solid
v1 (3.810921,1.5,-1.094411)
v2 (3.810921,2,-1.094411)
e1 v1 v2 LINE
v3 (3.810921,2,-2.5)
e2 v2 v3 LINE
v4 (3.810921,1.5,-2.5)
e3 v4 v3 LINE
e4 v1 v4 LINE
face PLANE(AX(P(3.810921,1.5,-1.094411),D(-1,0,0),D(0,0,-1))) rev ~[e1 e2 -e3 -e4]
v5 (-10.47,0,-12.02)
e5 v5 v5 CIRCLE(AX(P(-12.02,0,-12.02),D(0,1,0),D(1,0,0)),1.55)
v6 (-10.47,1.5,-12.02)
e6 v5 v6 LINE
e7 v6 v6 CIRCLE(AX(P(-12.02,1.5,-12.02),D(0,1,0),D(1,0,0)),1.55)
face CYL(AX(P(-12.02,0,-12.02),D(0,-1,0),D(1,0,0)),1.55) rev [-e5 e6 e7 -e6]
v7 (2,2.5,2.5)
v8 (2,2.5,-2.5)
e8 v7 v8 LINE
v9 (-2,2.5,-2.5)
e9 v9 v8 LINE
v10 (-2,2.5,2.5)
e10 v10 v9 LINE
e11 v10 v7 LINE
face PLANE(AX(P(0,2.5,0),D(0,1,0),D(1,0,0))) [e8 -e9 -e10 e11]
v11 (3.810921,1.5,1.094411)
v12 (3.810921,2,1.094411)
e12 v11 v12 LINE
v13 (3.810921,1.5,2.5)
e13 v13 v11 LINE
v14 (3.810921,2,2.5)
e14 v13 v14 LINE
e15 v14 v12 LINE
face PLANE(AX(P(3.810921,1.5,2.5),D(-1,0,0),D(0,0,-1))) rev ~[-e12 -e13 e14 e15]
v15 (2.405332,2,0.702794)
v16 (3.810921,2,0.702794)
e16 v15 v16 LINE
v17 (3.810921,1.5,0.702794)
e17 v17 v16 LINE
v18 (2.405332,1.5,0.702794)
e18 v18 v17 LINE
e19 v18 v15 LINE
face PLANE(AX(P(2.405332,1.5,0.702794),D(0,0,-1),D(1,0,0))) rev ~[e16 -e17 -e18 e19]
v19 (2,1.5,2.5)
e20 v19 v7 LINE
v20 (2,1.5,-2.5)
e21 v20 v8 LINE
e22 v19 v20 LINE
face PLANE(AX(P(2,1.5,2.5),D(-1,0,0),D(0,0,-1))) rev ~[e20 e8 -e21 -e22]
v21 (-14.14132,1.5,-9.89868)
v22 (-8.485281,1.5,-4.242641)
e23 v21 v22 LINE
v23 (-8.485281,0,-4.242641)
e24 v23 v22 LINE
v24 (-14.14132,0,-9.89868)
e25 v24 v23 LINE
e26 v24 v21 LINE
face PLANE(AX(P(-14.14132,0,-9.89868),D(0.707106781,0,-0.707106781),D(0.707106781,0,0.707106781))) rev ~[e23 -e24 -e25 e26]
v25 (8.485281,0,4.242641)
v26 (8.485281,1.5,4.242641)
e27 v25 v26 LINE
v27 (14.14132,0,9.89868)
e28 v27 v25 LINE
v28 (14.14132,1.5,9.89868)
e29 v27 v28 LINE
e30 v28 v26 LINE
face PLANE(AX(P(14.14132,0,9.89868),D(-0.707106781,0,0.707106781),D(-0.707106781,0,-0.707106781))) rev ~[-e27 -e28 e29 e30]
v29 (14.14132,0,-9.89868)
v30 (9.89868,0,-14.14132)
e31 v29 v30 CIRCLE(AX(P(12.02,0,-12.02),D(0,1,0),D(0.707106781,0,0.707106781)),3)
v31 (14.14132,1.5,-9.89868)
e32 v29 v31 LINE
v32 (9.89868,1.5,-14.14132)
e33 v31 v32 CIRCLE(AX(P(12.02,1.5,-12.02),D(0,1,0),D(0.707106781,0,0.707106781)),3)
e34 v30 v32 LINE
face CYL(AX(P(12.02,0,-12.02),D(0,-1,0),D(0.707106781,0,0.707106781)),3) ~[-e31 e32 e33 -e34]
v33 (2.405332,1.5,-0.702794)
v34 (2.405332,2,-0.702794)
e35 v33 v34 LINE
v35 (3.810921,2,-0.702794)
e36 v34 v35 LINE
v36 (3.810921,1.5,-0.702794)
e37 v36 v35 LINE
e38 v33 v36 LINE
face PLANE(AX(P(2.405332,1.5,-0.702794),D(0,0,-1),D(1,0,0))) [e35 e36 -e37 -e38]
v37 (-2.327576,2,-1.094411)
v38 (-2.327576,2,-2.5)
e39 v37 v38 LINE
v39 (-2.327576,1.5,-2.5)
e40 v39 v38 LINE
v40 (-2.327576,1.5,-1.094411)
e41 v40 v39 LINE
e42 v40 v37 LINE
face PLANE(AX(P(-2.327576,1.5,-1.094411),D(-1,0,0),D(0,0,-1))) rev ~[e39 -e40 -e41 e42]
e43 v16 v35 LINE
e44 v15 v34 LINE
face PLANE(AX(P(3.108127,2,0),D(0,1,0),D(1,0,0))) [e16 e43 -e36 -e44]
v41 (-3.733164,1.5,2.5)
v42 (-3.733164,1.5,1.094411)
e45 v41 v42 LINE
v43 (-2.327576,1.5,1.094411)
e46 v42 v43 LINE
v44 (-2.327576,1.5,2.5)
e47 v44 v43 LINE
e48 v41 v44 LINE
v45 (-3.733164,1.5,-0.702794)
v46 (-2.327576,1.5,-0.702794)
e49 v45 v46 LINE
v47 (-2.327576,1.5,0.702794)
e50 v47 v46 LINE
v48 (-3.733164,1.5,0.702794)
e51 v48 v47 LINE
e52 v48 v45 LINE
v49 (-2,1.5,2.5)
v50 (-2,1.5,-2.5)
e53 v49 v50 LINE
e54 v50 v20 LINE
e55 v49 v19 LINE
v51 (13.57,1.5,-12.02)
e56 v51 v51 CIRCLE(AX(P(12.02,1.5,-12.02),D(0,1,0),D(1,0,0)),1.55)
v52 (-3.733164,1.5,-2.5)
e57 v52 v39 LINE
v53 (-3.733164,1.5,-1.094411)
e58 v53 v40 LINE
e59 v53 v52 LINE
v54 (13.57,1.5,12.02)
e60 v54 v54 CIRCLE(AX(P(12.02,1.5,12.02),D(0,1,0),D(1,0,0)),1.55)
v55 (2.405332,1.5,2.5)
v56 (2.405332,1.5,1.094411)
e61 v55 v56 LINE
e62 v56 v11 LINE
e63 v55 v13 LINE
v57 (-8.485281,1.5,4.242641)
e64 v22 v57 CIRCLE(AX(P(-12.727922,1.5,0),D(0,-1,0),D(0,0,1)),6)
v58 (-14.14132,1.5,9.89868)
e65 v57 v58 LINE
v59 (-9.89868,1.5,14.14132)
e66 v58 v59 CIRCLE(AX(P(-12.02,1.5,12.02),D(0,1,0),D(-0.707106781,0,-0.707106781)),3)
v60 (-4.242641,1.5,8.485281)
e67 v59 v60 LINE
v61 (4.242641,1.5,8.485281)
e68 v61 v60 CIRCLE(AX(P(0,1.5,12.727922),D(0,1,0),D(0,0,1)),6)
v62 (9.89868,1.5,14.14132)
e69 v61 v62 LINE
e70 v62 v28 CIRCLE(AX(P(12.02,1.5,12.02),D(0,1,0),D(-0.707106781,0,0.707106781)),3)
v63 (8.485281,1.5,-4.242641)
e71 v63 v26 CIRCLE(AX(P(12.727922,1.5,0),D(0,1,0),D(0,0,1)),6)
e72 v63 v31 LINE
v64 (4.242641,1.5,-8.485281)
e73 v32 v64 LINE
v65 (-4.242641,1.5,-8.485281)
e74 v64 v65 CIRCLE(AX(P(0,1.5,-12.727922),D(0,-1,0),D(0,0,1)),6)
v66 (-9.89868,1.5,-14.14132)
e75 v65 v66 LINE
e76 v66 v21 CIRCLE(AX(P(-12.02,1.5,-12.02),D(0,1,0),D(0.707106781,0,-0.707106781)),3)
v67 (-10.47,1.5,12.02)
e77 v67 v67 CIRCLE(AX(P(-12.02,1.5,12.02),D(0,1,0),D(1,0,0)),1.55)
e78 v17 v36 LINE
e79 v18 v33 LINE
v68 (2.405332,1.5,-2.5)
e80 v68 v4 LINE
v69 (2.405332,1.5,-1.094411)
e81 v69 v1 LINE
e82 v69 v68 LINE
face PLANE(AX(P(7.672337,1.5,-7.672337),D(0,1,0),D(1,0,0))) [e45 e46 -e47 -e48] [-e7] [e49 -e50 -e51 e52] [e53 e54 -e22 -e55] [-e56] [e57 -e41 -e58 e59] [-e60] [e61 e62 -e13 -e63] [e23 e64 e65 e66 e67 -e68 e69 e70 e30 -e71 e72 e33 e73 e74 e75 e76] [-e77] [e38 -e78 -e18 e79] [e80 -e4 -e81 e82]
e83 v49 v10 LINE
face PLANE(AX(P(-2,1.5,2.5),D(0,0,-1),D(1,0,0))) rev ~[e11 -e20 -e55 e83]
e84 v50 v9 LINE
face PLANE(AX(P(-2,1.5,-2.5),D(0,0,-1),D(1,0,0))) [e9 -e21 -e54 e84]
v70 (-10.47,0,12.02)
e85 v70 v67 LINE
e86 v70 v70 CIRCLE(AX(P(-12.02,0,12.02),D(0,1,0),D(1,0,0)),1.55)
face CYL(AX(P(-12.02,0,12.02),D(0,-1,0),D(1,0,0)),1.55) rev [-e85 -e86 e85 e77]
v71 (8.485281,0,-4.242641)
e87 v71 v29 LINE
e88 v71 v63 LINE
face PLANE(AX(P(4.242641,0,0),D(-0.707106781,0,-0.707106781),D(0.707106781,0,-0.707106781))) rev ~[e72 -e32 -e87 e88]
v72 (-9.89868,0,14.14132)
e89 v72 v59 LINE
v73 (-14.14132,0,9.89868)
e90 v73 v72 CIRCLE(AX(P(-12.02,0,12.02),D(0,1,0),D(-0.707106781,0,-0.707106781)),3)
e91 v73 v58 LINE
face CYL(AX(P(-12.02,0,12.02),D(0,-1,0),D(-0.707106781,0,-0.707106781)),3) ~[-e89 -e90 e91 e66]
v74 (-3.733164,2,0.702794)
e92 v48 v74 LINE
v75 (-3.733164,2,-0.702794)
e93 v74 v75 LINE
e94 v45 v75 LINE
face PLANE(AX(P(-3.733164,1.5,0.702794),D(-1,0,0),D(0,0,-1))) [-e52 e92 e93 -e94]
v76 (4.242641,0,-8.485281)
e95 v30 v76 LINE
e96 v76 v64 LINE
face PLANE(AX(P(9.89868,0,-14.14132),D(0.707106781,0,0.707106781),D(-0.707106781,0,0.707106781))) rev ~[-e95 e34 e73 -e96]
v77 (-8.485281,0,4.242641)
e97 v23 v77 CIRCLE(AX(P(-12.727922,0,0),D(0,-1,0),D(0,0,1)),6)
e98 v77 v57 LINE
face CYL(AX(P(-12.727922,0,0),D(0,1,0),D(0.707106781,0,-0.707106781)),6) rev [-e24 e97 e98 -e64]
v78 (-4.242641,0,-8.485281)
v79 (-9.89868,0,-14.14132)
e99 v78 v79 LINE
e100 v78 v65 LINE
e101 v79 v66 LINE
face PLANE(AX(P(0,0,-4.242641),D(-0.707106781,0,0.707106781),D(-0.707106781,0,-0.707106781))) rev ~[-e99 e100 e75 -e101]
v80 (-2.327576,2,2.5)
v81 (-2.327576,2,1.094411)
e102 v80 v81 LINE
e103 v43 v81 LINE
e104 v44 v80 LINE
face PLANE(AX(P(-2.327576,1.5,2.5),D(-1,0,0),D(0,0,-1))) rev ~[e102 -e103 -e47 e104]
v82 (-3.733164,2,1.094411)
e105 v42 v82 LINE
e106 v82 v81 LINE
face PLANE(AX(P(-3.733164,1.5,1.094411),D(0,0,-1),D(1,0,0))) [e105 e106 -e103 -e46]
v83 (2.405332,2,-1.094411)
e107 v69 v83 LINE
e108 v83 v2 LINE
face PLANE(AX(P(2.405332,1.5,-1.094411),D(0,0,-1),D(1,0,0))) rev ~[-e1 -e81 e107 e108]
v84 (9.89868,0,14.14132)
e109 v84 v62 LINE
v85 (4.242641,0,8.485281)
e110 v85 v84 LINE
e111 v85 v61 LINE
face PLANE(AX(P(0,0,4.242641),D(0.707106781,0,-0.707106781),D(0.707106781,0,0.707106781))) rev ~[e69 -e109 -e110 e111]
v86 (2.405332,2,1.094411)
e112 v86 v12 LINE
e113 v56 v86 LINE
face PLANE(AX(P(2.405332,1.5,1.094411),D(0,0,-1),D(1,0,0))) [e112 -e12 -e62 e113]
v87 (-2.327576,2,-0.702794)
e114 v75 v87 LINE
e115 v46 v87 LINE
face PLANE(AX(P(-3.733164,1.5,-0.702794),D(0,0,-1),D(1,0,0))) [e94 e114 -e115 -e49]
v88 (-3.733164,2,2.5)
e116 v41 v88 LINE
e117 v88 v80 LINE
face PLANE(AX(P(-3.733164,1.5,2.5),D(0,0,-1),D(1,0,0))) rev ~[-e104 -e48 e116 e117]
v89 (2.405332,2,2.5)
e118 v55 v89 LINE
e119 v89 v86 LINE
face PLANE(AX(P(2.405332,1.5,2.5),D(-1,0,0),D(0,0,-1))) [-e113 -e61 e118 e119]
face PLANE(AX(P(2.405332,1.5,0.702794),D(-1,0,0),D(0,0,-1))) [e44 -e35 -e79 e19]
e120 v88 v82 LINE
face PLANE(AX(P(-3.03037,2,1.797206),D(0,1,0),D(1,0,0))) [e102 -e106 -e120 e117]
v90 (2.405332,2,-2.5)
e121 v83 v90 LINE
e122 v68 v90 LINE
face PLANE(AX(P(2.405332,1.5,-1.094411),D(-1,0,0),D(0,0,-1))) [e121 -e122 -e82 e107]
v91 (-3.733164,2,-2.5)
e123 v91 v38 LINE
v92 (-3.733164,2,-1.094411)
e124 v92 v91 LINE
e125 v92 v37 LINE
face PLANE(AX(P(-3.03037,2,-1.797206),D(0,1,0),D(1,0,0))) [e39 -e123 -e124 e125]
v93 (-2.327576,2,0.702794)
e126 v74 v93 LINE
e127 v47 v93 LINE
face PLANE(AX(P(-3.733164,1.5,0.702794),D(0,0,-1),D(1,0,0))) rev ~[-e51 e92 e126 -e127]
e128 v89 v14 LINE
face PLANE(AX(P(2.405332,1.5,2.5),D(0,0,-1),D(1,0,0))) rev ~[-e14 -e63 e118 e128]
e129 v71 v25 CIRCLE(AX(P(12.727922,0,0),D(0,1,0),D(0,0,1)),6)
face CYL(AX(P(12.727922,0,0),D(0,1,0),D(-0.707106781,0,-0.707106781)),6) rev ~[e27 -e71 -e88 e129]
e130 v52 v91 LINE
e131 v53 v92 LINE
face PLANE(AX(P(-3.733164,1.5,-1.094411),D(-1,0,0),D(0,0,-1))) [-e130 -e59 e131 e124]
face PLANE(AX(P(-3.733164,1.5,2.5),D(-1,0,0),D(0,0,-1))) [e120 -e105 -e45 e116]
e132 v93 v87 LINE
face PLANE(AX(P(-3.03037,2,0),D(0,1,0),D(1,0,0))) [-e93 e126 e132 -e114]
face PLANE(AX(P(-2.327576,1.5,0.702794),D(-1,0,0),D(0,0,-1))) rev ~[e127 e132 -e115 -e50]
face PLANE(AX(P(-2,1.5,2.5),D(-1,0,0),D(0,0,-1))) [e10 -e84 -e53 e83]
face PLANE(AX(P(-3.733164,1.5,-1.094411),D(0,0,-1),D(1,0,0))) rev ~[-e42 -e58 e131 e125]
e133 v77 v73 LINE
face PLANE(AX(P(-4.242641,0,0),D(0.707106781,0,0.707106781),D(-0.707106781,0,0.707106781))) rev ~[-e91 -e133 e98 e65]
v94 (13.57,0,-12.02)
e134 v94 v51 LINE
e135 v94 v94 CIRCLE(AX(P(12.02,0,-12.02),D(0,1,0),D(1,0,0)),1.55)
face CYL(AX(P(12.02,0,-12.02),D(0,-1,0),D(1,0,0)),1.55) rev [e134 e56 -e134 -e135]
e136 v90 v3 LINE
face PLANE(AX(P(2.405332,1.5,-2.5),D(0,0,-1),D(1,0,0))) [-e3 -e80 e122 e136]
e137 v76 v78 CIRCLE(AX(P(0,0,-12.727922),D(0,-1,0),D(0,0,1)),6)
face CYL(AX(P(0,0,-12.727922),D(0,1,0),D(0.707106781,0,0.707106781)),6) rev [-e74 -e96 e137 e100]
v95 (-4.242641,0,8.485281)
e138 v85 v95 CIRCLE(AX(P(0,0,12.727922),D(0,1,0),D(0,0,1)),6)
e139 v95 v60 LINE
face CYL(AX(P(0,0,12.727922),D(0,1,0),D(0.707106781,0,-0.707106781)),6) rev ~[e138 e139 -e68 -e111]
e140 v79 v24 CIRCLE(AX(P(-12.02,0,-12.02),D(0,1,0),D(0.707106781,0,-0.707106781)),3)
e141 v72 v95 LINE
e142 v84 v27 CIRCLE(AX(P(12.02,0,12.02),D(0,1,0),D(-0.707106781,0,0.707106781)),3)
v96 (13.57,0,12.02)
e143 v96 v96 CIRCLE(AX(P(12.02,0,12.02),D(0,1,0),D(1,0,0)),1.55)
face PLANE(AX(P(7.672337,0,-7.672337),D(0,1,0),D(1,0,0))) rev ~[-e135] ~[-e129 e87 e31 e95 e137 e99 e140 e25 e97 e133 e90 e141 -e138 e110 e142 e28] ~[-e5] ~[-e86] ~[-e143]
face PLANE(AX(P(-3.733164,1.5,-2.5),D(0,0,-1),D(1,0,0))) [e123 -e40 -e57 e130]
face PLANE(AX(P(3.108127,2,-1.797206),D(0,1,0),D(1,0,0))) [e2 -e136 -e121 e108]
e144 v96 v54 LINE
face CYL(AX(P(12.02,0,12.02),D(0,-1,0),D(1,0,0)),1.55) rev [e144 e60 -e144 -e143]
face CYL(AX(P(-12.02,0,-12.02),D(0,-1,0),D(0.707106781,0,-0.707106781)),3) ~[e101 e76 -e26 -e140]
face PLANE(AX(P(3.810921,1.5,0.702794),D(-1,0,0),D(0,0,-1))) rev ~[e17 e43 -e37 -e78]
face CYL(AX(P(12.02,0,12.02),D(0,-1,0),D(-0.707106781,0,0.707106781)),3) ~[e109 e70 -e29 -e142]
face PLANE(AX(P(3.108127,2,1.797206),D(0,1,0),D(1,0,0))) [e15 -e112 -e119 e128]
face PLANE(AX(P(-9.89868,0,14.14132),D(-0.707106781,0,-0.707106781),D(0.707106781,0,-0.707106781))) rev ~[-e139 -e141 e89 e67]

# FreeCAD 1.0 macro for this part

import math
import FreeCAD as App
import Part
import Sketcher

V = App.Vector


def edges_at(feature, points):
    """Names of the edges that pass closest to the given points."""
    edges = feature.Shape.Edges
    near = lambda p: min(range(len(edges)), key=lambda i: edges[i].distToShape(Part.Vertex(*p))[0])
    return sorted({f"Edge{near(p) + 1}" for p in points})


def add_polygon(sketch, points):
    """Adds a closed chain of lines whose ends are joined by coincident constraints."""
    first, n = sketch.GeometryCount, len(points)
    for a, b in zip(points, points[1:] + points[:1]):
        sketch.addGeometry(Part.LineSegment(App.Vector(*a, 0), App.Vector(*b, 0)), False)
    for i in range(n):
        sketch.addConstraint(Sketcher.Constraint("Coincident", first + i, 2, first + (i + 1) % n, 1))

doc = App.newDocument("Part")
body = doc.addObject("PartDesign::Body", "Body")

sketch1 = body.newObject("Sketcher::SketchObject", "Sketch")
sketch1.AttachmentSupport = (doc.getObject("XZ_Plane"), [""])
sketch1.MapMode = "FlatFace"
sketch1.addGeometry(Part.LineSegment(V(9.89868, -14.14132, 0), V(0, -4.242641, 0)), False)
sketch1.addGeometry(Part.LineSegment(V(0, -4.242641, 0), V(-9.89868, -14.14132, 0)), False)
sketch1.addGeometry(Part.ArcOfCircle(Part.Circle(V(-12.02, -12.02, 0), V(0, 0, 1), 3), math.radians(135), math.radians(315)), False)
sketch1.addGeometry(Part.LineSegment(V(-14.14132, -9.89868, 0), V(-4.242641, 0, 0)), False)
sketch1.addGeometry(Part.LineSegment(V(-4.242641, 0, 0), V(-14.14132, 9.89868, 0)), False)
sketch1.addGeometry(Part.ArcOfCircle(Part.Circle(V(-12.02, 12.02, 0), V(0, 0, 1), 3), math.radians(45), math.radians(225)), False)
sketch1.addGeometry(Part.LineSegment(V(-9.89868, 14.14132, 0), V(0, 4.242641, 0)), False)
sketch1.addGeometry(Part.LineSegment(V(0, 4.242641, 0), V(9.89868, 14.14132, 0)), False)
sketch1.addGeometry(Part.ArcOfCircle(Part.Circle(V(12.02, 12.02, 0), V(0, 0, 1), 3), math.radians(-45), math.radians(135)), False)
sketch1.addGeometry(Part.LineSegment(V(14.14132, 9.89868, 0), V(4.242641, 0, 0)), False)
sketch1.addGeometry(Part.LineSegment(V(4.242641, 0, 0), V(14.14132, -9.89868, 0)), False)
sketch1.addGeometry(Part.ArcOfCircle(Part.Circle(V(12.02, -12.02, 0), V(0, 0, 1), 3), math.radians(-135), math.radians(45)), False)
sketch1.addGeometry(Part.Circle(V(-12.02, 12.02, 0), V(0, 0, 1), 1.55), False)
sketch1.addGeometry(Part.Circle(V(12.02, 12.02, 0), V(0, 0, 1), 1.55), False)
sketch1.addGeometry(Part.Circle(V(-12.02, -12.02, 0), V(0, 0, 1), 1.55), False)
sketch1.addGeometry(Part.Circle(V(12.02, -12.02, 0), V(0, 0, 1), 1.55), False)
sketch1.addConstraint(Sketcher.Constraint("Coincident", 0, 2, 1, 1))
sketch1.addConstraint(Sketcher.Constraint("Tangent", 1, 2, 2, 2))
sketch1.addConstraint(Sketcher.Constraint("Tangent", 2, 1, 3, 1))
sketch1.addConstraint(Sketcher.Constraint("Coincident", 3, 2, 4, 1))
sketch1.addConstraint(Sketcher.Constraint("Tangent", 4, 2, 5, 2))
sketch1.addConstraint(Sketcher.Constraint("Tangent", 5, 1, 6, 1))
sketch1.addConstraint(Sketcher.Constraint("Coincident", 6, 2, 7, 1))
sketch1.addConstraint(Sketcher.Constraint("Tangent", 7, 2, 8, 2))
sketch1.addConstraint(Sketcher.Constraint("Tangent", 8, 1, 9, 1))
sketch1.addConstraint(Sketcher.Constraint("Coincident", 9, 2, 10, 1))
sketch1.addConstraint(Sketcher.Constraint("Tangent", 10, 2, 11, 2))
sketch1.addConstraint(Sketcher.Constraint("Tangent", 11, 1, 0, 1))
sketch1.addConstraint(Sketcher.Constraint("Coincident", 12, 3, 5, 3))
sketch1.addConstraint(Sketcher.Constraint("Coincident", 13, 3, 8, 3))
sketch1.addConstraint(Sketcher.Constraint("Coincident", 14, 3, 2, 3))
sketch1.addConstraint(Sketcher.Constraint("Coincident", 15, 3, 11, 3))
sketch1.addConstraint(Sketcher.Constraint("Equal", 2, 5))
sketch1.addConstraint(Sketcher.Constraint("Equal", 5, 8))
sketch1.addConstraint(Sketcher.Constraint("Equal", 8, 11))
sketch1.addConstraint(Sketcher.Constraint("Equal", 12, 13))
sketch1.addConstraint(Sketcher.Constraint("Equal", 13, 14))
sketch1.addConstraint(Sketcher.Constraint("Equal", 14, 15))
sketch1.addConstraint(Sketcher.Constraint("Symmetric", 2, 3, 8, 3, -1, 1))
sketch1.addConstraint(Sketcher.Constraint("Symmetric", 5, 3, 11, 3, -1, 1))
sketch1.addConstraint(Sketcher.Constraint("Symmetric", 0, 2, 6, 2, -1, 1))
sketch1.addConstraint(Sketcher.Constraint("Symmetric", 3, 2, 9, 2, -1, 1))
sketch1.addConstraint(Sketcher.Constraint("Symmetric", 5, 3, 8, 3, -2))
sketch1.addConstraint(Sketcher.Constraint("PointOnObject", 0, 2, -2))
sketch1.addConstraint(Sketcher.Constraint("PointOnObject", 3, 2, -1))
sketch1.addConstraint(Sketcher.Constraint("Perpendicular", 0, 1))
sketch1.addConstraint(Sketcher.Constraint("Parallel", 1, 3))
sketch1.addConstraint(Sketcher.Constraint("Equal", 1, 3))
sketch1.addConstraint(Sketcher.Constraint("Radius", 2, 3.0))
sketch1.addConstraint(Sketcher.Constraint("Diameter", 12, 3.1))
sketch1.addConstraint(Sketcher.Constraint("DistanceX", 2, 3, -1, 1, 12.02))
pad1 = body.newObject("PartDesign::Pad", "Pad")
pad1.Profile = sketch1
pad1.Length = 1.5
pad1.Reversed = True
doc.recompute()

fillet = body.newObject("PartDesign::Fillet", "Fillet")
fillet.Base = (pad1, edges_at(pad1, [
    (4.243, 0.75, 0),
    (0, 0.75, 4.243),
    (-4.243, 0.75, 0),
    (0, 0.75, -4.243),
]))
fillet.Radius = 6

sketch2 = body.newObject("Sketcher::SketchObject", "Sketch001")
sketch2.AttachmentSupport = (doc.getObject("XZ_Plane"), [""])
sketch2.MapMode = "FlatFace"
sketch2.AttachmentOffset = App.Placement(V(0, 0, -1.5), App.Rotation())
add_polygon(sketch2, [(-2, -2.5), (-2, 2.5), (2, 2.5), (2, -2.5)])
sketch2.addConstraint(Sketcher.Constraint("Vertical", 0))
sketch2.addConstraint(Sketcher.Constraint("Horizontal", 1))
sketch2.addConstraint(Sketcher.Constraint("Vertical", 2))
sketch2.addConstraint(Sketcher.Constraint("Horizontal", 3))
sketch2.addConstraint(Sketcher.Constraint("Symmetric", 0, 2, 2, 2, -1, 1))
sketch2.addConstraint(Sketcher.Constraint("DistanceX", 1, 1, 1, 2, 4.0))
sketch2.addConstraint(Sketcher.Constraint("DistanceY", 0, 1, 0, 2, 5.0))
pad2 = body.newObject("PartDesign::Pad", "Pad001")
pad2.Profile = sketch2
pad2.Length = 1
pad2.Reversed = True

sketch3 = body.newObject("Sketcher::SketchObject", "Sketch002")
sketch3.AttachmentSupport = (doc.getObject("XZ_Plane"), [""])
sketch3.MapMode = "FlatFace"
sketch3.AttachmentOffset = App.Placement(V(0, 0, -1.5), App.Rotation())
add_polygon(sketch3, [(-3.733164, 1.094411), (-3.733164, 2.5), (-2.327576, 2.5), (-2.327576, 1.094411)])
add_polygon(sketch3, [(-3.733164, -0.702794), (-3.733164, 0.702794), (-2.327576, 0.702794), (-2.327576, -0.702794)])
add_polygon(sketch3, [(-3.733164, -2.5), (-3.733164, -1.094411), (-2.327576, -1.094411), (-2.327576, -2.5)])
add_polygon(sketch3, [(2.405332, -0.702794), (2.405332, 0.702794), (3.810921, 0.702794), (3.810921, -0.702794)])
add_polygon(sketch3, [(2.405332, 1.094411), (2.405332, 2.5), (3.810921, 2.5), (3.810921, 1.094411)])
add_polygon(sketch3, [(2.405332, -2.5), (2.405332, -1.094411), (3.810921, -1.094411), (3.810921, -2.5)])
sketch3.addConstraint(Sketcher.Constraint("Vertical", 0))
sketch3.addConstraint(Sketcher.Constraint("Horizontal", 1))
sketch3.addConstraint(Sketcher.Constraint("Vertical", 2))
sketch3.addConstraint(Sketcher.Constraint("Horizontal", 3))
sketch3.addConstraint(Sketcher.Constraint("Vertical", 4))
sketch3.addConstraint(Sketcher.Constraint("Horizontal", 5))
sketch3.addConstraint(Sketcher.Constraint("Vertical", 6))
sketch3.addConstraint(Sketcher.Constraint("Horizontal", 7))
sketch3.addConstraint(Sketcher.Constraint("Vertical", 8))
sketch3.addConstraint(Sketcher.Constraint("Horizontal", 9))
sketch3.addConstraint(Sketcher.Constraint("Vertical", 10))
sketch3.addConstraint(Sketcher.Constraint("Horizontal", 11))
sketch3.addConstraint(Sketcher.Constraint("Vertical", 12))
sketch3.addConstraint(Sketcher.Constraint("Horizontal", 13))
sketch3.addConstraint(Sketcher.Constraint("Vertical", 14))
sketch3.addConstraint(Sketcher.Constraint("Horizontal", 15))
sketch3.addConstraint(Sketcher.Constraint("Vertical", 16))
sketch3.addConstraint(Sketcher.Constraint("Horizontal", 17))
sketch3.addConstraint(Sketcher.Constraint("Vertical", 18))
sketch3.addConstraint(Sketcher.Constraint("Horizontal", 19))
sketch3.addConstraint(Sketcher.Constraint("Vertical", 20))
sketch3.addConstraint(Sketcher.Constraint("Horizontal", 21))
sketch3.addConstraint(Sketcher.Constraint("Vertical", 22))
sketch3.addConstraint(Sketcher.Constraint("Horizontal", 23))
sketch3.addConstraint(Sketcher.Constraint("Symmetric", 3, 2, 8, 2, -1))
sketch3.addConstraint(Sketcher.Constraint("Symmetric", 1, 2, 10, 2, -1))
sketch3.addConstraint(Sketcher.Constraint("Symmetric", 19, 2, 20, 2, -1))
sketch3.addConstraint(Sketcher.Constraint("Symmetric", 17, 2, 22, 2, -1))
sketch3.addConstraint(Sketcher.Constraint("Horizontal", 5, 2, 12, 2))
sketch3.addConstraint(Sketcher.Constraint("Horizontal", 7, 2, 14, 2))
sketch3.addConstraint(Sketcher.Constraint("Horizontal", 1, 2, 16, 2))
sketch3.addConstraint(Sketcher.Constraint("Horizontal", 3, 2, 18, 2))
sketch3.addConstraint(Sketcher.Constraint("Vertical", 3, 2, 4, 2))
sketch3.addConstraint(Sketcher.Constraint("Vertical", 2, 2, 5, 2))
sketch3.addConstraint(Sketcher.Constraint("Vertical", 15, 2, 16, 2))
sketch3.addConstraint(Sketcher.Constraint("Vertical", 14, 2, 17, 2))
sketch3.addConstraint(Sketcher.Constraint("Equal", 11, 13))
sketch3.addConstraint(Sketcher.Constraint("Equal", 23, 0))
sketch3.addConstraint(Sketcher.Constraint("Equal", 2, 4))
sketch3.addConstraint(Sketcher.Constraint("DistanceY", -1, 1, 0, 2, 2.5))
sketch3.addConstraint(Sketcher.Constraint("DistanceX", 1, 1, 1, 2, 1.405589))
sketch3.addConstraint(Sketcher.Constraint("DistanceX", -1, 1, 13, 2, 3.810921))
sketch3.addConstraint(Sketcher.Constraint("DistanceX", 5, 2, 12, 2, 4.732908))
sketch3.addConstraint(Sketcher.Constraint("DistanceY", -1, 1, 4, 2, 0.702794))
pad3 = body.newObject("PartDesign::Pad", "Pad002")
pad3.Profile = sketch3
pad3.Length = 0.5
pad3.Reversed = True

doc.recompute()
